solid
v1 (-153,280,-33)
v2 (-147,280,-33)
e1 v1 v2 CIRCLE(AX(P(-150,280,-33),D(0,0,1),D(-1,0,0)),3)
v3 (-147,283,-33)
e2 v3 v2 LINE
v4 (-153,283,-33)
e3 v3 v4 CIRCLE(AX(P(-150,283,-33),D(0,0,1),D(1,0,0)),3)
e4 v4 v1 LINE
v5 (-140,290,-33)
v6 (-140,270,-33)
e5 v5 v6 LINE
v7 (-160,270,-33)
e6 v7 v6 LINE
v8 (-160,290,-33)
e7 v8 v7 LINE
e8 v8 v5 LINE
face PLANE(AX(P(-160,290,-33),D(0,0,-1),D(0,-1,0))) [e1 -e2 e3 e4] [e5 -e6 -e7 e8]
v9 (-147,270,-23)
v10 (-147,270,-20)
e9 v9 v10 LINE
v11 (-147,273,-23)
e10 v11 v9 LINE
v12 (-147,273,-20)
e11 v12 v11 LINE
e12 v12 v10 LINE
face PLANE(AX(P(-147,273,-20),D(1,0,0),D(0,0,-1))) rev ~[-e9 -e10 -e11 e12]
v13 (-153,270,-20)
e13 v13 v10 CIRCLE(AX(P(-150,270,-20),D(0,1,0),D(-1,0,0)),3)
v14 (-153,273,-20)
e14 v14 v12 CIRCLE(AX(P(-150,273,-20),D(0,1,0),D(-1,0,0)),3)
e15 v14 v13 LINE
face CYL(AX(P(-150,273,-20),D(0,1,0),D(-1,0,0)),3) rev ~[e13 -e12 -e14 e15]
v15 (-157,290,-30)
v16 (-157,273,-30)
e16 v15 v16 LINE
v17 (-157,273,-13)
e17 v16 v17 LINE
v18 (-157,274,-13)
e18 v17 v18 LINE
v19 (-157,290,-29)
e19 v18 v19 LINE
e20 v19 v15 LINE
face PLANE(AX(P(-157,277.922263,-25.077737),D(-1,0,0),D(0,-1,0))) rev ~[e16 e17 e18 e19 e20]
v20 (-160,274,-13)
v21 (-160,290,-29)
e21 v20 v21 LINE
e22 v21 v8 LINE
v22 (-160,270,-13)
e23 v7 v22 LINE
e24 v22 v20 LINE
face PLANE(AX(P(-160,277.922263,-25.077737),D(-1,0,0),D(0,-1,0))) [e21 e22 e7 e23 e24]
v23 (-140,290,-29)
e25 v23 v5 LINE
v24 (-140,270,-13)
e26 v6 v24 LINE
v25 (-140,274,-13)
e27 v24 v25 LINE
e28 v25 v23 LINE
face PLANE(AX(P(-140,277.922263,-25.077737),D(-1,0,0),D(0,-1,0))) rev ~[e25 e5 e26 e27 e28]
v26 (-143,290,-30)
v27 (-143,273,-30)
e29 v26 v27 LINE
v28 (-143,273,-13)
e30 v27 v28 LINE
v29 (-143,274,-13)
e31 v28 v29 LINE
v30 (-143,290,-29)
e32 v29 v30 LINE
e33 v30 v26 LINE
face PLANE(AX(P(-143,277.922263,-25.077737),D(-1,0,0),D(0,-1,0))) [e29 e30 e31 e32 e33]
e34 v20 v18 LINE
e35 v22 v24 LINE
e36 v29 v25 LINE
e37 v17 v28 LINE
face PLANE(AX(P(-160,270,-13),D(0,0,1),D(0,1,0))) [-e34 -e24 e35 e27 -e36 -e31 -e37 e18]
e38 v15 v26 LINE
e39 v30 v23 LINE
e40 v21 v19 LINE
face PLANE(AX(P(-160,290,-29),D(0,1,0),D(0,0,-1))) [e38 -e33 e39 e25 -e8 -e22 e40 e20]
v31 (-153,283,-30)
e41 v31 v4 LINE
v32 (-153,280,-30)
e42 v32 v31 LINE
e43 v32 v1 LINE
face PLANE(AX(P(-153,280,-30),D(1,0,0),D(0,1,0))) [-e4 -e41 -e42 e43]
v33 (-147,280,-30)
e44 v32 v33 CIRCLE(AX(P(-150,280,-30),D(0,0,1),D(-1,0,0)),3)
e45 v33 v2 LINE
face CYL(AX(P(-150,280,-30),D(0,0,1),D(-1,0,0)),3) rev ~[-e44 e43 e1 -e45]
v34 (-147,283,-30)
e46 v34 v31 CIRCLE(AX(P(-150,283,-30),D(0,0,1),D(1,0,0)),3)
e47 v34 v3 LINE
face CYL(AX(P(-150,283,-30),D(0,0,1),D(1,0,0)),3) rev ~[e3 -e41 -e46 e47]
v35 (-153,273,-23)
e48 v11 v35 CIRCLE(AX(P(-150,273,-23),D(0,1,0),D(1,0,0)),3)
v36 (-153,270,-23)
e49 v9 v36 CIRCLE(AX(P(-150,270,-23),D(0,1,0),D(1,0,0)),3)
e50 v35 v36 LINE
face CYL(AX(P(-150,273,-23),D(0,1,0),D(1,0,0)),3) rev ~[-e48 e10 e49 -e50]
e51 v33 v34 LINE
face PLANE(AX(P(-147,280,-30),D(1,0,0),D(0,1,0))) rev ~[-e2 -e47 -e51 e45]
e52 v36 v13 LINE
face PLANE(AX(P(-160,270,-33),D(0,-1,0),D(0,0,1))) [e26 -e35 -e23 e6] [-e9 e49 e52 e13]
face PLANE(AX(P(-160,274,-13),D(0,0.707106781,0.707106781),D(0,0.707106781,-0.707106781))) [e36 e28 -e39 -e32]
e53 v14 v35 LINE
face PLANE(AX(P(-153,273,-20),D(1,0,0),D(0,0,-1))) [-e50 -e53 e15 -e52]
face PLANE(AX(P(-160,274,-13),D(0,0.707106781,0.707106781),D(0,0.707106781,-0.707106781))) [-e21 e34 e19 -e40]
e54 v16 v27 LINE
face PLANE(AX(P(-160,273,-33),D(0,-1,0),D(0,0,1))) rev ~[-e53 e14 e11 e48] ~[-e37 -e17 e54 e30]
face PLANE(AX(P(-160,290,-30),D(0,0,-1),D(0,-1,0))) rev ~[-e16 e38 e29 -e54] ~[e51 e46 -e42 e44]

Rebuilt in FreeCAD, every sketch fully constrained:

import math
import FreeCAD as App
import Part
import Sketcher

V = App.Vector
Q = App.Units.Quantity


def faces_at(feature, points):
    """Names of the faces that lie closest to the given points."""
    faces = feature.Shape.Faces
    near = lambda p: min(range(len(faces)), key=lambda i: faces[i].distToShape(Part.Vertex(*p))[0])
    return sorted({f"Face{near(p) + 1}" for p in points})

doc = App.newDocument("Part")
params = doc.addObject("Spreadsheet::Sheet", "Params")
for row, (alias, value) in enumerate([
    ("sketch1_width", "20 mm"),
    ("sketch1_width2", "4 mm"),
    ("pad1_length", "20 mm"),
    ("thickness_wall", "3 mm"),
    ("sketch2_radius", "3 mm"),
    ("sketch2_height", "3 mm"),
    ("pocket1_length", "5 mm"),
    ("sketch3_radius", "3 mm"),
    ("sketch3_width", "3 mm"),
    ("pocket2_length", "5 mm"),
], start=1):
    params.set(f"A{row}", alias)
    params.set(f"B{row}", "=" + value)
    params.setAlias(f"B{row}", alias)

body = doc.addObject("PartDesign::Body", "Body")

sketch1 = doc.addObject("Sketcher::SketchObject", "Sketch")
body.addObject(sketch1)
sketch1.AttachmentSupport = (doc.XZ_Plane, [""])
sketch1.MapMode = "FlatFace"
sketch1.addGeometry(Part.LineSegment(V(0, 20, 0), V(0, 0, 0)), False)
sketch1.addGeometry(Part.LineSegment(V(0, 0, 0), V(20, 0, 0)), False)
sketch1.addGeometry(Part.LineSegment(V(20, 0, 0), V(20, 4, 0)), False)
sketch1.addGeometry(Part.LineSegment(V(20, 4, 0), V(4, 20, 0)), False)
sketch1.addGeometry(Part.LineSegment(V(4, 20, 0), V(0, 20, 0)), False)
sketch1.addConstraint(Sketcher.Constraint("Coincident", 0, 2, 1, 1))
sketch1.addConstraint(Sketcher.Constraint("Coincident", 1, 2, 2, 1))
sketch1.addConstraint(Sketcher.Constraint("Coincident", 2, 2, 3, 1))
sketch1.addConstraint(Sketcher.Constraint("Coincident", 3, 2, 4, 1))
sketch1.addConstraint(Sketcher.Constraint("Coincident", 4, 2, 0, 1))
sketch1.addConstraint(Sketcher.Constraint("Vertical", 0))
sketch1.addConstraint(Sketcher.Constraint("Horizontal", 1))
sketch1.addConstraint(Sketcher.Constraint("Vertical", 2))
sketch1.addConstraint(Sketcher.Constraint("Horizontal", 4))
sketch1.addConstraint(Sketcher.Constraint("Coincident", 0, 2, -1, 1))
sketch1.addConstraint(Sketcher.Constraint("Equal", 1, 0))
sketch1.addConstraint(Sketcher.Constraint("Equal", 4, 2))
sketch1.addConstraint(Sketcher.Constraint("DistanceX", 1, 1, 1, 2, Q("20 mm")))
sketch1.addConstraint(Sketcher.Constraint("DistanceX", 4, 2, 4, 1, Q("4 mm")))
sketch1.setExpression("Constraints[12]", "Params.sketch1_width")
sketch1.setExpression("Constraints[13]", "Params.sketch1_width2")
pad1 = doc.addObject("PartDesign::Pad", "Pad")
body.addObject(pad1)
pad1.Profile = sketch1
pad1.setExpression("Length", "Params.pad1_length")
doc.recompute()

thickness = doc.addObject("PartDesign::Thickness", "Thickness")
body.addObject(thickness)
thickness.Base = (pad1, faces_at(pad1, [(2, -10, 20), (12, -10, 12), (20, -10, 2)]))
thickness.setExpression("Value", "Params.thickness_wall")
thickness.Reversed = True
thickness.Join = "Arc"

sketch2 = doc.addObject("Sketcher::SketchObject", "Sketch001")
body.addObject(sketch2)
sketch2.AttachmentSupport = (doc.YZ_Plane, [""])
sketch2.MapMode = "FlatFace"
sketch2.AttachmentOffset = App.Placement(V(0, 0, 3), App.Rotation())
sketch2.addGeometry(Part.ArcOfCircle(Part.Circle(V(-10, 13, 0), V(0, 0, 1), 3), math.radians(0), math.radians(180)), False)
sketch2.addGeometry(Part.LineSegment(V(-13, 13, 0), V(-13, 10, 0)), False)
sketch2.addGeometry(Part.ArcOfCircle(Part.Circle(V(-10, 10, 0), V(0, 0, 1), 3), math.radians(180), math.radians(360)), False)
sketch2.addGeometry(Part.LineSegment(V(-7, 10, 0), V(-7, 13, 0)), False)
sketch2.addConstraint(Sketcher.Constraint("Tangent", 0, 2, 1, 1))
sketch2.addConstraint(Sketcher.Constraint("Tangent", 1, 2, 2, 1))
sketch2.addConstraint(Sketcher.Constraint("Tangent", 2, 2, 3, 1))
sketch2.addConstraint(Sketcher.Constraint("Tangent", 3, 2, 0, 1))
sketch2.addConstraint(Sketcher.Constraint("Vertical", 1))
sketch2.addConstraint(Sketcher.Constraint("Vertical", 3))
sketch2.addConstraint(Sketcher.Constraint("Radius", 0, Q("3 mm")))
sketch2.addConstraint(Sketcher.Constraint("DistanceY", 1, 2, 1, 1, Q("3 mm")))
sketch2.addConstraint(Sketcher.Constraint("DistanceX", 0, 3, -1, 1, Q("10 mm")))
sketch2.addConstraint(Sketcher.Constraint("DistanceY", -1, 1, 0, 3, Q("13 mm")))
sketch2.setExpression("Constraints[6]", "Params.sketch2_radius")
sketch2.setExpression("Constraints[7]", "Params.sketch2_height")
pocket1 = doc.addObject("PartDesign::Pocket", "Pocket")
body.addObject(pocket1)
pocket1.Profile = sketch2
pocket1.setExpression("Length", "Params.pocket1_length")

sketch3 = doc.addObject("Sketcher::SketchObject", "Sketch002")
body.addObject(sketch3)
sketch3.AttachmentSupport = (doc.XY_Plane, [""])
sketch3.MapMode = "FlatFace"
sketch3.AttachmentOffset = App.Placement(V(0, 0, 3), App.Rotation())
sketch3.addGeometry(Part.ArcOfCircle(Part.Circle(V(10, -10, 0), V(0, 0, 1), 3), math.radians(90), math.radians(270)), False)
sketch3.addGeometry(Part.LineSegment(V(10, -13, 0), V(13, -13, 0)), False)
sketch3.addGeometry(Part.ArcOfCircle(Part.Circle(V(13, -10, 0), V(0, 0, 1), 3), math.radians(-90), math.radians(90)), False)
sketch3.addGeometry(Part.LineSegment(V(13, -7, 0), V(10, -7, 0)), False)
sketch3.addConstraint(Sketcher.Constraint("Tangent", 0, 2, 1, 1))
sketch3.addConstraint(Sketcher.Constraint("Tangent", 1, 2, 2, 1))
sketch3.addConstraint(Sketcher.Constraint("Tangent", 2, 2, 3, 1))
sketch3.addConstraint(Sketcher.Constraint("Tangent", 3, 2, 0, 1))
sketch3.addConstraint(Sketcher.Constraint("Horizontal", 1))
sketch3.addConstraint(Sketcher.Constraint("Horizontal", 3))
sketch3.addConstraint(Sketcher.Constraint("Radius", 0, Q("3 mm")))
sketch3.addConstraint(Sketcher.Constraint("DistanceX", 1, 1, 1, 2, Q("3 mm")))
sketch3.addConstraint(Sketcher.Constraint("DistanceX", -1, 1, 0, 3, Q("10 mm")))
sketch3.addConstraint(Sketcher.Constraint("DistanceY", 0, 3, -1, 1, Q("10 mm")))
sketch3.setExpression("Constraints[6]", "Params.sketch3_radius")
sketch3.setExpression("Constraints[7]", "Params.sketch3_width")
pocket2 = doc.addObject("PartDesign::Pocket", "Pocket001")
body.addObject(pocket2)
pocket2.Profile = sketch3
pocket2.setExpression("Length", "Params.pocket2_length")
body2 = doc.addObject("PartDesign::Body", "Body001")
doc.recompute()

body.Placement = App.Placement(V(-160, 270, -33), App.Rotation(V(0, 0, 1), 90))
boolean = doc.addObject("PartDesign::Boolean", "Boolean")
body2.addObject(boolean)
boolean.Type = "Fuse"
boolean.addObjects([body])

doc.recompute()
